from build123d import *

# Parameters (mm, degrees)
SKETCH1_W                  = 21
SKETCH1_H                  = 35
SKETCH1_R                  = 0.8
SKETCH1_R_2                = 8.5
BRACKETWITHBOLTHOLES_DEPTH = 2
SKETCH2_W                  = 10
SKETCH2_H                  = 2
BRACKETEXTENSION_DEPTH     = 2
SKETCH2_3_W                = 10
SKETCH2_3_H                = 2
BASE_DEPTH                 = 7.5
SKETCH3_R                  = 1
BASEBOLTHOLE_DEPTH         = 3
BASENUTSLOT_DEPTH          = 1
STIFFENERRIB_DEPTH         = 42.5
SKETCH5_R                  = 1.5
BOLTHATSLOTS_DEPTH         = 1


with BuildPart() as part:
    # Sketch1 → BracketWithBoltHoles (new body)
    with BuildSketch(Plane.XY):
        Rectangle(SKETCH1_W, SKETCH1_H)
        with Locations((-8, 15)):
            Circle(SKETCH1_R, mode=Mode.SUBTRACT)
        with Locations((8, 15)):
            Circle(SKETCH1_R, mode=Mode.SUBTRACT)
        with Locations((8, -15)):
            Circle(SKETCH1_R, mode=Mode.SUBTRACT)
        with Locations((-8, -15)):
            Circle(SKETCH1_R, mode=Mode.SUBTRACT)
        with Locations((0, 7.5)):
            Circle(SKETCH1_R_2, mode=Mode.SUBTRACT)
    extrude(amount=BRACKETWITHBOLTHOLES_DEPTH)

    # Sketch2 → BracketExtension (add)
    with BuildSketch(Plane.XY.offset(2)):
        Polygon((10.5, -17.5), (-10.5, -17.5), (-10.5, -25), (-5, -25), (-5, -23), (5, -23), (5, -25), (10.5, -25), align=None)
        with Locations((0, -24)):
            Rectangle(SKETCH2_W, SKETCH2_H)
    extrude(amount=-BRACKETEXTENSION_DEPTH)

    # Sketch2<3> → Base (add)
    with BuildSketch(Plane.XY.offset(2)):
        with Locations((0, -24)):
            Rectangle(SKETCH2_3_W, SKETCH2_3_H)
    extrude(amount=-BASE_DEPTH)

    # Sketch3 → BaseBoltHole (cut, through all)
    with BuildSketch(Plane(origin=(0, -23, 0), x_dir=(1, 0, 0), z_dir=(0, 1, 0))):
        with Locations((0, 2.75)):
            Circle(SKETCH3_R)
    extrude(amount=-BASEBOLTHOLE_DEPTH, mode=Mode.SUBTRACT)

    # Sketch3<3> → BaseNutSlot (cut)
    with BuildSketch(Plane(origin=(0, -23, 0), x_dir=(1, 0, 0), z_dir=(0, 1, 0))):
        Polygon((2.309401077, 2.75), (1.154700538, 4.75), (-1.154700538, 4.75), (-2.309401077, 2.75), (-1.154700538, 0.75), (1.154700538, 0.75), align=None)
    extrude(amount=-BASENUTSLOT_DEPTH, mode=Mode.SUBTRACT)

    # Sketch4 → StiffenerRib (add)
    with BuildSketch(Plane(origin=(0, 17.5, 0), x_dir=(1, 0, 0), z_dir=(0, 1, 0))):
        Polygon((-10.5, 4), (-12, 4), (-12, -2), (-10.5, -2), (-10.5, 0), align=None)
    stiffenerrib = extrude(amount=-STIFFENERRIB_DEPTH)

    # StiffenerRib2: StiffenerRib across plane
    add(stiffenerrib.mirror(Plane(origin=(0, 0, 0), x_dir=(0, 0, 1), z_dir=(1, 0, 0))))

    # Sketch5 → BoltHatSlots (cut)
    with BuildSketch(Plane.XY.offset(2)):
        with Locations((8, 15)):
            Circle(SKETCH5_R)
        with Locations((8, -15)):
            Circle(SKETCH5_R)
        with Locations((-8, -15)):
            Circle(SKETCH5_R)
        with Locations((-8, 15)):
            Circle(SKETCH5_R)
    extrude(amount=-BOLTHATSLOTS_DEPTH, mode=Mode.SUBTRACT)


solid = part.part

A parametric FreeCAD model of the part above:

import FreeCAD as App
import Part
import Sketcher
Q = App.Units.Quantity

doc = App.newDocument("Part")
body = doc.addObject("PartDesign::Body", "Body")

# Sketch on XY plane
sketch1 = body.newObject("Sketcher::SketchObject", "Sketch")
sketch1.AttachmentSupport = (doc.getObject("XY_Plane"), [""])
sketch1.MapMode = "FlatFace"
sketch1.addGeometry(Part.LineSegment(App.Vector(-10.5, 17.5, 0), App.Vector(-10.5, -17.5, 0)), False)
sketch1.addGeometry(Part.LineSegment(App.Vector(-10.5, -17.5, 0), App.Vector(10.5, -17.5, 0)), False)
sketch1.addGeometry(Part.LineSegment(App.Vector(10.5, -17.5, 0), App.Vector(10.5, 17.5, 0)), False)
sketch1.addGeometry(Part.LineSegment(App.Vector(10.5, 17.5, 0), App.Vector(-10.5, 17.5, 0)), False)
sketch1.addGeometry(Part.Circle(App.Vector(-8, -15, 0), App.Vector(0, 0, 1), 0.8), False)
sketch1.addGeometry(Part.Circle(App.Vector(8, -15, 0), App.Vector(0, 0, 1), 0.8), False)
sketch1.addGeometry(Part.Circle(App.Vector(-8, 15, 0), App.Vector(0, 0, 1), 0.8), False)
sketch1.addGeometry(Part.Circle(App.Vector(0, 7.5, 0), App.Vector(0, 0, 1), 8.5), False)
sketch1.addGeometry(Part.Circle(App.Vector(8, 15, 0), App.Vector(0, 0, 1), 0.8), False)
sketch1.addConstraint(Sketcher.Constraint("Coincident", 0, 2, 1, 1))
sketch1.addConstraint(Sketcher.Constraint("Coincident", 1, 2, 2, 1))
sketch1.addConstraint(Sketcher.Constraint("Coincident", 2, 2, 3, 1))
sketch1.addConstraint(Sketcher.Constraint("Coincident", 3, 2, 0, 1))
sketch1.addConstraint(Sketcher.Constraint("Vertical", 0))
sketch1.addConstraint(Sketcher.Constraint("Horizontal", 1))
sketch1.addConstraint(Sketcher.Constraint("Vertical", 2))
sketch1.addConstraint(Sketcher.Constraint("Horizontal", 3))
sketch1.addConstraint(Sketcher.Constraint("Equal", 4, 5))
sketch1.addConstraint(Sketcher.Constraint("Equal", 5, 6))
sketch1.addConstraint(Sketcher.Constraint("Equal", 6, 8))
sketch1.addConstraint(Sketcher.Constraint("Symmetric", 5, 3, 6, 3, -1, 1))
sketch1.addConstraint(Sketcher.Constraint("Symmetric", 4, 3, 8, 3, -1, 1))
sketch1.addConstraint(Sketcher.Constraint("Symmetric", 0, 2, 2, 2, -1, 1))
sketch1.addConstraint(Sketcher.Constraint("Symmetric", 4, 3, 5, 3, -2))
sketch1.addConstraint(Sketcher.Constraint("PointOnObject", 7, 3, -2))
sketch1.addConstraint(Sketcher.Constraint("Diameter", 7, Q("17 mm")))
sketch1.addConstraint(Sketcher.Constraint("Diameter", 4, Q("1.6 mm")))
sketch1.addConstraint(Sketcher.Constraint("DistanceX", 1, 1, 1, 2, Q("21 mm")))
sketch1.addConstraint(Sketcher.Constraint("DistanceY", 0, 2, 0, 1, Q("35 mm")))
sketch1.addConstraint(Sketcher.Constraint("DistanceX", 4, 3, -1, 1, Q("8 mm")))
sketch1.addConstraint(Sketcher.Constraint("DistanceY", 4, 3, -1, 1, Q("15 mm")))
sketch1.addConstraint(Sketcher.Constraint("DistanceY", 0, 2, 7, 3, Q("25 mm")))
pad1 = body.newObject("PartDesign::Pad", "Pad")
pad1.Profile = sketch1
pad1.Length = 2

# Sketch on XY plane
sketch2 = body.newObject("Sketcher::SketchObject", "Sketch001")
sketch2.AttachmentSupport = (doc.getObject("XY_Plane"), [""])
sketch2.MapMode = "FlatFace"
sketch2.AttachmentOffset = App.Placement(App.Vector(0, 0, 2), App.Rotation())
sketch2.addGeometry(Part.LineSegment(App.Vector(10, -18, 0), App.Vector(-10, -18, 0)), False)
sketch2.addGeometry(Part.LineSegment(App.Vector(-10, -18, 0), App.Vector(-10, -25, 0)), False)
sketch2.addGeometry(Part.LineSegment(App.Vector(-10, -25, 0), App.Vector(10, -25, 0)), False)
sketch2.addGeometry(Part.LineSegment(App.Vector(10, -25, 0), App.Vector(10, -18, 0)), False)
sketch2.addConstraint(Sketcher.Constraint("Coincident", 0, 2, 1, 1))
sketch2.addConstraint(Sketcher.Constraint("Coincident", 1, 2, 2, 1))
sketch2.addConstraint(Sketcher.Constraint("Coincident", 2, 2, 3, 1))
sketch2.addConstraint(Sketcher.Constraint("Coincident", 3, 2, 0, 1))
sketch2.addConstraint(Sketcher.Constraint("Horizontal", 0))
sketch2.addConstraint(Sketcher.Constraint("Vertical", 1))
sketch2.addConstraint(Sketcher.Constraint("Horizontal", 2))
sketch2.addConstraint(Sketcher.Constraint("Vertical", 3))
sketch2.addConstraint(Sketcher.Constraint("DistanceX", 0, 2, 0, 1, Q("21 mm")))
sketch2.addConstraint(Sketcher.Constraint("DistanceY", 1, 2, 1, 1, Q("7.5 mm")))
sketch2.addConstraint(Sketcher.Constraint("DistanceY", 1, 2, -1, 1, Q("25 mm")))
sketch2.addConstraint(Sketcher.Constraint("DistanceX", 0, 2, -1, 1, Q("10.5 mm")))
pad2 = body.newObject("PartDesign::Pad", "Pad001")
pad2.Profile = sketch2
pad2.Length = 2
pad2.Reversed = True

# Sketch on XY plane
sketch3 = body.newObject("Sketcher::SketchObject", "Sketch002")
sketch3.AttachmentSupport = (doc.getObject("XY_Plane"), [""])
sketch3.MapMode = "FlatFace"
sketch3.AttachmentOffset = App.Placement(App.Vector(0, 0, 2), App.Rotation())
sketch3.addGeometry(Part.LineSegment(App.Vector(-5, -23, 0), App.Vector(-5, -25, 0)), False)
sketch3.addGeometry(Part.LineSegment(App.Vector(-5, -25, 0), App.Vector(5, -25, 0)), False)
sketch3.addGeometry(Part.LineSegment(App.Vector(5, -25, 0), App.Vector(5, -23, 0)), False)
sketch3.addGeometry(Part.LineSegment(App.Vector(5, -23, 0), App.Vector(-5, -23, 0)), False)
sketch3.addConstraint(Sketcher.Constraint("Coincident", 0, 2, 1, 1))
sketch3.addConstraint(Sketcher.Constraint("Coincident", 1, 2, 2, 1))
sketch3.addConstraint(Sketcher.Constraint("Coincident", 2, 2, 3, 1))
sketch3.addConstraint(Sketcher.Constraint("Coincident", 3, 2, 0, 1))
sketch3.addConstraint(Sketcher.Constraint("Vertical", 0))
sketch3.addConstraint(Sketcher.Constraint("Horizontal", 1))
sketch3.addConstraint(Sketcher.Constraint("Vertical", 2))
sketch3.addConstraint(Sketcher.Constraint("Horizontal", 3))
sketch3.addConstraint(Sketcher.Constraint("DistanceX", 1, 1, 1, 2, Q("10 mm")))
sketch3.addConstraint(Sketcher.Constraint("DistanceY", 0, 2, 0, 1, Q("2 mm")))
sketch3.addConstraint(Sketcher.Constraint("DistanceX", 0, 2, -1, 1, Q("5 mm")))
sketch3.addConstraint(Sketcher.Constraint("DistanceY", 0, 2, -1, 1, Q("25 mm")))
pad3 = body.newObject("PartDesign::Pad", "Pad002")
pad3.Profile = sketch3
pad3.Length = 7.5
pad3.Reversed = True

# Sketch on XZ plane
sketch4 = body.newObject("Sketcher::SketchObject", "Sketch003")
sketch4.AttachmentSupport = (doc.getObject("XZ_Plane"), [""])
sketch4.MapMode = "FlatFace"
sketch4.AttachmentOffset = App.Placement(App.Vector(0, 0, 23), App.Rotation())
sketch4.addGeometry(Part.Circle(App.Vector(0, -2.8, 0), App.Vector(0, 0, 1), 1), False)
sketch4.addConstraint(Sketcher.Constraint("PointOnObject", 0, 3, -2))
sketch4.addConstraint(Sketcher.Constraint("Diameter", 0, Q("2 mm")))
sketch4.addConstraint(Sketcher.Constraint("DistanceY", 0, 3, -1, 1, Q("2.75 mm")))
pocket1 = body.newObject("PartDesign::Pocket", "Pocket")
pocket1.Profile = sketch4
pocket1.Type = "ThroughAll"
pocket1.Reversed = True

# Sketch on XZ plane
sketch5 = body.newObject("Sketcher::SketchObject", "Sketch004")
sketch5.AttachmentSupport = (doc.getObject("XZ_Plane"), [""])
sketch5.MapMode = "FlatFace"
sketch5.AttachmentOffset = App.Placement(App.Vector(0, 0, 23), App.Rotation())
sketch5.addGeometry(Part.LineSegment(App.Vector(2.3, -2.8, 0), App.Vector(1.2, -4.8, 0)), False)
sketch5.addGeometry(Part.LineSegment(App.Vector(1.2, -4.8, 0), App.Vector(-1.2, -4.8, 0)), False)
sketch5.addGeometry(Part.LineSegment(App.Vector(-1.2, -4.8, 0), App.Vector(-2.3, -2.8, 0)), False)
sketch5.addGeometry(Part.LineSegment(App.Vector(-2.3, -2.8, 0), App.Vector(-1.2, -0.8, 0)), False)
sketch5.addGeometry(Part.LineSegment(App.Vector(-1.2, -0.8, 0), App.Vector(1.2, -0.8, 0)), False)
sketch5.addGeometry(Part.LineSegment(App.Vector(1.2, -0.8, 0), App.Vector(2.3, -2.8, 0)), False)
sketch5.addConstraint(Sketcher.Constraint("Coincident", 0, 2, 1, 1))
sketch5.addConstraint(Sketcher.Constraint("Coincident", 1, 2, 2, 1))
sketch5.addConstraint(Sketcher.Constraint("Coincident", 2, 2, 3, 1))
sketch5.addConstraint(Sketcher.Constraint("Coincident", 3, 2, 4, 1))
sketch5.addConstraint(Sketcher.Constraint("Coincident", 4, 2, 5, 1))
sketch5.addConstraint(Sketcher.Constraint("Coincident", 5, 2, 0, 1))
sketch5.addConstraint(Sketcher.Constraint("Horizontal", 1))
sketch5.addConstraint(Sketcher.Constraint("Horizontal", 4))
sketch5.addConstraint(Sketcher.Constraint("Symmetric", 2, 2, 5, 2, -2))
sketch5.addConstraint(Sketcher.Constraint("Parallel", 0, 3))
sketch5.addConstraint(Sketcher.Constraint("Parallel", 2, 5))
sketch5.addConstraint(Sketcher.Constraint("Vertical", 1, 2, 3, 2))
sketch5.addConstraint(Sketcher.Constraint("Vertical", 0, 2, 4, 2))
sketch5.addConstraint(Sketcher.Constraint("Angle", 0, Q("-120 deg")))
sketch5.addConstraint(Sketcher.Constraint("DistanceY", 1, 2, 2, 2, Q("2 mm")))
sketch5.addConstraint(Sketcher.Constraint("DistanceY", 0, 2, -1, 1, Q("4.75 mm")))
sketch5.addConstraint(Sketcher.Constraint("DistanceX", 1, 2, 1, 1, Q("2.309401 mm")))
pocket2 = body.newObject("PartDesign::Pocket", "Pocket001")
pocket2.Profile = sketch5
pocket2.Length = 1
pocket2.Reversed = True

# Sketch on XZ plane
sketch6 = body.newObject("Sketcher::SketchObject", "Sketch005")
sketch6.AttachmentSupport = (doc.getObject("XZ_Plane"), [""])
sketch6.MapMode = "FlatFace"
sketch6.AttachmentOffset = App.Placement(App.Vector(0, 0, -17.5), App.Rotation())
sketch6.addGeometry(Part.LineSegment(App.Vector(-10.5, -4, 0), App.Vector(-12, -4, 0)), False)
sketch6.addGeometry(Part.LineSegment(App.Vector(-12, -4, 0), App.Vector(-12, 2, 0)), False)
sketch6.addGeometry(Part.LineSegment(App.Vector(-12, 2, 0), App.Vector(-10.5, 2, 0)), False)
sketch6.addGeometry(Part.LineSegment(App.Vector(-10.5, 2, 0), App.Vector(-10.5, -4, 0)), False)
sketch6.addConstraint(Sketcher.Constraint("Coincident", 0, 2, 1, 1))
sketch6.addConstraint(Sketcher.Constraint("Coincident", 1, 2, 2, 1))
sketch6.addConstraint(Sketcher.Constraint("Coincident", 2, 2, 3, 1))
sketch6.addConstraint(Sketcher.Constraint("Coincident", 3, 2, 0, 1))
sketch6.addConstraint(Sketcher.Constraint("Horizontal", 0))
sketch6.addConstraint(Sketcher.Constraint("Vertical", 1))
sketch6.addConstraint(Sketcher.Constraint("Horizontal", 2))
sketch6.addConstraint(Sketcher.Constraint("Vertical", 3))
sketch6.addConstraint(Sketcher.Constraint("DistanceY", 1, 1, 1, 2, Q("6 mm")))
sketch6.addConstraint(Sketcher.Constraint("DistanceX", 0, 2, 0, 1, Q("1.5 mm")))
sketch6.addConstraint(Sketcher.Constraint("DistanceX", 0, 2, -1, 1, Q("12 mm")))
sketch6.addConstraint(Sketcher.Constraint("DistanceY", 0, 2, -1, 1, Q("4 mm")))
pad4 = body.newObject("PartDesign::Pad", "Pad003")
pad4.Profile = sketch6
pad4.Length = 42.5
doc.recompute()

mirrored = body.newObject("PartDesign::Mirrored", "Mirrored")
mirrored.Originals = [pad4]
mirrored.MirrorPlane = (doc.getObject("YZ_Plane"), [""])
body.Tip = mirrored

# Sketch on XY plane
sketch7 = body.newObject("Sketcher::SketchObject", "Sketch006")
sketch7.AttachmentSupport = (doc.getObject("XY_Plane"), [""])
sketch7.MapMode = "FlatFace"
sketch7.AttachmentOffset = App.Placement(App.Vector(0, 0, 2), App.Rotation())
sketch7.addGeometry(Part.Circle(App.Vector(8, 15, 0), App.Vector(0, 0, 1), 1.5), False)
sketch7.addGeometry(Part.Circle(App.Vector(8, -15, 0), App.Vector(0, 0, 1), 1.5), False)
sketch7.addGeometry(Part.Circle(App.Vector(-8, -15, 0), App.Vector(0, 0, 1), 1.5), False)
sketch7.addGeometry(Part.Circle(App.Vector(-8, 15, 0), App.Vector(0, 0, 1), 1.5), False)
sketch7.addConstraint(Sketcher.Constraint("Equal", 0, 1))
sketch7.addConstraint(Sketcher.Constraint("Equal", 1, 2))
sketch7.addConstraint(Sketcher.Constraint("Equal", 2, 3))
sketch7.addConstraint(Sketcher.Constraint("Symmetric", 0, 3, 2, 3, -1, 1))
sketch7.addConstraint(Sketcher.Constraint("Symmetric", 1, 3, 3, 3, -1, 1))
sketch7.addConstraint(Sketcher.Constraint("Symmetric", 1, 3, 2, 3, -2))
sketch7.addConstraint(Sketcher.Constraint("Diameter", 0, Q("3 mm")))
sketch7.addConstraint(Sketcher.Constraint("DistanceX", -1, 1, 0, 3, Q("8 mm")))
sketch7.addConstraint(Sketcher.Constraint("DistanceY", -1, 1, 0, 3, Q("15 mm")))
pocket3 = body.newObject("PartDesign::Pocket", "Pocket002")
pocket3.Profile = sketch7
pocket3.Length = 1

doc.recompute()
